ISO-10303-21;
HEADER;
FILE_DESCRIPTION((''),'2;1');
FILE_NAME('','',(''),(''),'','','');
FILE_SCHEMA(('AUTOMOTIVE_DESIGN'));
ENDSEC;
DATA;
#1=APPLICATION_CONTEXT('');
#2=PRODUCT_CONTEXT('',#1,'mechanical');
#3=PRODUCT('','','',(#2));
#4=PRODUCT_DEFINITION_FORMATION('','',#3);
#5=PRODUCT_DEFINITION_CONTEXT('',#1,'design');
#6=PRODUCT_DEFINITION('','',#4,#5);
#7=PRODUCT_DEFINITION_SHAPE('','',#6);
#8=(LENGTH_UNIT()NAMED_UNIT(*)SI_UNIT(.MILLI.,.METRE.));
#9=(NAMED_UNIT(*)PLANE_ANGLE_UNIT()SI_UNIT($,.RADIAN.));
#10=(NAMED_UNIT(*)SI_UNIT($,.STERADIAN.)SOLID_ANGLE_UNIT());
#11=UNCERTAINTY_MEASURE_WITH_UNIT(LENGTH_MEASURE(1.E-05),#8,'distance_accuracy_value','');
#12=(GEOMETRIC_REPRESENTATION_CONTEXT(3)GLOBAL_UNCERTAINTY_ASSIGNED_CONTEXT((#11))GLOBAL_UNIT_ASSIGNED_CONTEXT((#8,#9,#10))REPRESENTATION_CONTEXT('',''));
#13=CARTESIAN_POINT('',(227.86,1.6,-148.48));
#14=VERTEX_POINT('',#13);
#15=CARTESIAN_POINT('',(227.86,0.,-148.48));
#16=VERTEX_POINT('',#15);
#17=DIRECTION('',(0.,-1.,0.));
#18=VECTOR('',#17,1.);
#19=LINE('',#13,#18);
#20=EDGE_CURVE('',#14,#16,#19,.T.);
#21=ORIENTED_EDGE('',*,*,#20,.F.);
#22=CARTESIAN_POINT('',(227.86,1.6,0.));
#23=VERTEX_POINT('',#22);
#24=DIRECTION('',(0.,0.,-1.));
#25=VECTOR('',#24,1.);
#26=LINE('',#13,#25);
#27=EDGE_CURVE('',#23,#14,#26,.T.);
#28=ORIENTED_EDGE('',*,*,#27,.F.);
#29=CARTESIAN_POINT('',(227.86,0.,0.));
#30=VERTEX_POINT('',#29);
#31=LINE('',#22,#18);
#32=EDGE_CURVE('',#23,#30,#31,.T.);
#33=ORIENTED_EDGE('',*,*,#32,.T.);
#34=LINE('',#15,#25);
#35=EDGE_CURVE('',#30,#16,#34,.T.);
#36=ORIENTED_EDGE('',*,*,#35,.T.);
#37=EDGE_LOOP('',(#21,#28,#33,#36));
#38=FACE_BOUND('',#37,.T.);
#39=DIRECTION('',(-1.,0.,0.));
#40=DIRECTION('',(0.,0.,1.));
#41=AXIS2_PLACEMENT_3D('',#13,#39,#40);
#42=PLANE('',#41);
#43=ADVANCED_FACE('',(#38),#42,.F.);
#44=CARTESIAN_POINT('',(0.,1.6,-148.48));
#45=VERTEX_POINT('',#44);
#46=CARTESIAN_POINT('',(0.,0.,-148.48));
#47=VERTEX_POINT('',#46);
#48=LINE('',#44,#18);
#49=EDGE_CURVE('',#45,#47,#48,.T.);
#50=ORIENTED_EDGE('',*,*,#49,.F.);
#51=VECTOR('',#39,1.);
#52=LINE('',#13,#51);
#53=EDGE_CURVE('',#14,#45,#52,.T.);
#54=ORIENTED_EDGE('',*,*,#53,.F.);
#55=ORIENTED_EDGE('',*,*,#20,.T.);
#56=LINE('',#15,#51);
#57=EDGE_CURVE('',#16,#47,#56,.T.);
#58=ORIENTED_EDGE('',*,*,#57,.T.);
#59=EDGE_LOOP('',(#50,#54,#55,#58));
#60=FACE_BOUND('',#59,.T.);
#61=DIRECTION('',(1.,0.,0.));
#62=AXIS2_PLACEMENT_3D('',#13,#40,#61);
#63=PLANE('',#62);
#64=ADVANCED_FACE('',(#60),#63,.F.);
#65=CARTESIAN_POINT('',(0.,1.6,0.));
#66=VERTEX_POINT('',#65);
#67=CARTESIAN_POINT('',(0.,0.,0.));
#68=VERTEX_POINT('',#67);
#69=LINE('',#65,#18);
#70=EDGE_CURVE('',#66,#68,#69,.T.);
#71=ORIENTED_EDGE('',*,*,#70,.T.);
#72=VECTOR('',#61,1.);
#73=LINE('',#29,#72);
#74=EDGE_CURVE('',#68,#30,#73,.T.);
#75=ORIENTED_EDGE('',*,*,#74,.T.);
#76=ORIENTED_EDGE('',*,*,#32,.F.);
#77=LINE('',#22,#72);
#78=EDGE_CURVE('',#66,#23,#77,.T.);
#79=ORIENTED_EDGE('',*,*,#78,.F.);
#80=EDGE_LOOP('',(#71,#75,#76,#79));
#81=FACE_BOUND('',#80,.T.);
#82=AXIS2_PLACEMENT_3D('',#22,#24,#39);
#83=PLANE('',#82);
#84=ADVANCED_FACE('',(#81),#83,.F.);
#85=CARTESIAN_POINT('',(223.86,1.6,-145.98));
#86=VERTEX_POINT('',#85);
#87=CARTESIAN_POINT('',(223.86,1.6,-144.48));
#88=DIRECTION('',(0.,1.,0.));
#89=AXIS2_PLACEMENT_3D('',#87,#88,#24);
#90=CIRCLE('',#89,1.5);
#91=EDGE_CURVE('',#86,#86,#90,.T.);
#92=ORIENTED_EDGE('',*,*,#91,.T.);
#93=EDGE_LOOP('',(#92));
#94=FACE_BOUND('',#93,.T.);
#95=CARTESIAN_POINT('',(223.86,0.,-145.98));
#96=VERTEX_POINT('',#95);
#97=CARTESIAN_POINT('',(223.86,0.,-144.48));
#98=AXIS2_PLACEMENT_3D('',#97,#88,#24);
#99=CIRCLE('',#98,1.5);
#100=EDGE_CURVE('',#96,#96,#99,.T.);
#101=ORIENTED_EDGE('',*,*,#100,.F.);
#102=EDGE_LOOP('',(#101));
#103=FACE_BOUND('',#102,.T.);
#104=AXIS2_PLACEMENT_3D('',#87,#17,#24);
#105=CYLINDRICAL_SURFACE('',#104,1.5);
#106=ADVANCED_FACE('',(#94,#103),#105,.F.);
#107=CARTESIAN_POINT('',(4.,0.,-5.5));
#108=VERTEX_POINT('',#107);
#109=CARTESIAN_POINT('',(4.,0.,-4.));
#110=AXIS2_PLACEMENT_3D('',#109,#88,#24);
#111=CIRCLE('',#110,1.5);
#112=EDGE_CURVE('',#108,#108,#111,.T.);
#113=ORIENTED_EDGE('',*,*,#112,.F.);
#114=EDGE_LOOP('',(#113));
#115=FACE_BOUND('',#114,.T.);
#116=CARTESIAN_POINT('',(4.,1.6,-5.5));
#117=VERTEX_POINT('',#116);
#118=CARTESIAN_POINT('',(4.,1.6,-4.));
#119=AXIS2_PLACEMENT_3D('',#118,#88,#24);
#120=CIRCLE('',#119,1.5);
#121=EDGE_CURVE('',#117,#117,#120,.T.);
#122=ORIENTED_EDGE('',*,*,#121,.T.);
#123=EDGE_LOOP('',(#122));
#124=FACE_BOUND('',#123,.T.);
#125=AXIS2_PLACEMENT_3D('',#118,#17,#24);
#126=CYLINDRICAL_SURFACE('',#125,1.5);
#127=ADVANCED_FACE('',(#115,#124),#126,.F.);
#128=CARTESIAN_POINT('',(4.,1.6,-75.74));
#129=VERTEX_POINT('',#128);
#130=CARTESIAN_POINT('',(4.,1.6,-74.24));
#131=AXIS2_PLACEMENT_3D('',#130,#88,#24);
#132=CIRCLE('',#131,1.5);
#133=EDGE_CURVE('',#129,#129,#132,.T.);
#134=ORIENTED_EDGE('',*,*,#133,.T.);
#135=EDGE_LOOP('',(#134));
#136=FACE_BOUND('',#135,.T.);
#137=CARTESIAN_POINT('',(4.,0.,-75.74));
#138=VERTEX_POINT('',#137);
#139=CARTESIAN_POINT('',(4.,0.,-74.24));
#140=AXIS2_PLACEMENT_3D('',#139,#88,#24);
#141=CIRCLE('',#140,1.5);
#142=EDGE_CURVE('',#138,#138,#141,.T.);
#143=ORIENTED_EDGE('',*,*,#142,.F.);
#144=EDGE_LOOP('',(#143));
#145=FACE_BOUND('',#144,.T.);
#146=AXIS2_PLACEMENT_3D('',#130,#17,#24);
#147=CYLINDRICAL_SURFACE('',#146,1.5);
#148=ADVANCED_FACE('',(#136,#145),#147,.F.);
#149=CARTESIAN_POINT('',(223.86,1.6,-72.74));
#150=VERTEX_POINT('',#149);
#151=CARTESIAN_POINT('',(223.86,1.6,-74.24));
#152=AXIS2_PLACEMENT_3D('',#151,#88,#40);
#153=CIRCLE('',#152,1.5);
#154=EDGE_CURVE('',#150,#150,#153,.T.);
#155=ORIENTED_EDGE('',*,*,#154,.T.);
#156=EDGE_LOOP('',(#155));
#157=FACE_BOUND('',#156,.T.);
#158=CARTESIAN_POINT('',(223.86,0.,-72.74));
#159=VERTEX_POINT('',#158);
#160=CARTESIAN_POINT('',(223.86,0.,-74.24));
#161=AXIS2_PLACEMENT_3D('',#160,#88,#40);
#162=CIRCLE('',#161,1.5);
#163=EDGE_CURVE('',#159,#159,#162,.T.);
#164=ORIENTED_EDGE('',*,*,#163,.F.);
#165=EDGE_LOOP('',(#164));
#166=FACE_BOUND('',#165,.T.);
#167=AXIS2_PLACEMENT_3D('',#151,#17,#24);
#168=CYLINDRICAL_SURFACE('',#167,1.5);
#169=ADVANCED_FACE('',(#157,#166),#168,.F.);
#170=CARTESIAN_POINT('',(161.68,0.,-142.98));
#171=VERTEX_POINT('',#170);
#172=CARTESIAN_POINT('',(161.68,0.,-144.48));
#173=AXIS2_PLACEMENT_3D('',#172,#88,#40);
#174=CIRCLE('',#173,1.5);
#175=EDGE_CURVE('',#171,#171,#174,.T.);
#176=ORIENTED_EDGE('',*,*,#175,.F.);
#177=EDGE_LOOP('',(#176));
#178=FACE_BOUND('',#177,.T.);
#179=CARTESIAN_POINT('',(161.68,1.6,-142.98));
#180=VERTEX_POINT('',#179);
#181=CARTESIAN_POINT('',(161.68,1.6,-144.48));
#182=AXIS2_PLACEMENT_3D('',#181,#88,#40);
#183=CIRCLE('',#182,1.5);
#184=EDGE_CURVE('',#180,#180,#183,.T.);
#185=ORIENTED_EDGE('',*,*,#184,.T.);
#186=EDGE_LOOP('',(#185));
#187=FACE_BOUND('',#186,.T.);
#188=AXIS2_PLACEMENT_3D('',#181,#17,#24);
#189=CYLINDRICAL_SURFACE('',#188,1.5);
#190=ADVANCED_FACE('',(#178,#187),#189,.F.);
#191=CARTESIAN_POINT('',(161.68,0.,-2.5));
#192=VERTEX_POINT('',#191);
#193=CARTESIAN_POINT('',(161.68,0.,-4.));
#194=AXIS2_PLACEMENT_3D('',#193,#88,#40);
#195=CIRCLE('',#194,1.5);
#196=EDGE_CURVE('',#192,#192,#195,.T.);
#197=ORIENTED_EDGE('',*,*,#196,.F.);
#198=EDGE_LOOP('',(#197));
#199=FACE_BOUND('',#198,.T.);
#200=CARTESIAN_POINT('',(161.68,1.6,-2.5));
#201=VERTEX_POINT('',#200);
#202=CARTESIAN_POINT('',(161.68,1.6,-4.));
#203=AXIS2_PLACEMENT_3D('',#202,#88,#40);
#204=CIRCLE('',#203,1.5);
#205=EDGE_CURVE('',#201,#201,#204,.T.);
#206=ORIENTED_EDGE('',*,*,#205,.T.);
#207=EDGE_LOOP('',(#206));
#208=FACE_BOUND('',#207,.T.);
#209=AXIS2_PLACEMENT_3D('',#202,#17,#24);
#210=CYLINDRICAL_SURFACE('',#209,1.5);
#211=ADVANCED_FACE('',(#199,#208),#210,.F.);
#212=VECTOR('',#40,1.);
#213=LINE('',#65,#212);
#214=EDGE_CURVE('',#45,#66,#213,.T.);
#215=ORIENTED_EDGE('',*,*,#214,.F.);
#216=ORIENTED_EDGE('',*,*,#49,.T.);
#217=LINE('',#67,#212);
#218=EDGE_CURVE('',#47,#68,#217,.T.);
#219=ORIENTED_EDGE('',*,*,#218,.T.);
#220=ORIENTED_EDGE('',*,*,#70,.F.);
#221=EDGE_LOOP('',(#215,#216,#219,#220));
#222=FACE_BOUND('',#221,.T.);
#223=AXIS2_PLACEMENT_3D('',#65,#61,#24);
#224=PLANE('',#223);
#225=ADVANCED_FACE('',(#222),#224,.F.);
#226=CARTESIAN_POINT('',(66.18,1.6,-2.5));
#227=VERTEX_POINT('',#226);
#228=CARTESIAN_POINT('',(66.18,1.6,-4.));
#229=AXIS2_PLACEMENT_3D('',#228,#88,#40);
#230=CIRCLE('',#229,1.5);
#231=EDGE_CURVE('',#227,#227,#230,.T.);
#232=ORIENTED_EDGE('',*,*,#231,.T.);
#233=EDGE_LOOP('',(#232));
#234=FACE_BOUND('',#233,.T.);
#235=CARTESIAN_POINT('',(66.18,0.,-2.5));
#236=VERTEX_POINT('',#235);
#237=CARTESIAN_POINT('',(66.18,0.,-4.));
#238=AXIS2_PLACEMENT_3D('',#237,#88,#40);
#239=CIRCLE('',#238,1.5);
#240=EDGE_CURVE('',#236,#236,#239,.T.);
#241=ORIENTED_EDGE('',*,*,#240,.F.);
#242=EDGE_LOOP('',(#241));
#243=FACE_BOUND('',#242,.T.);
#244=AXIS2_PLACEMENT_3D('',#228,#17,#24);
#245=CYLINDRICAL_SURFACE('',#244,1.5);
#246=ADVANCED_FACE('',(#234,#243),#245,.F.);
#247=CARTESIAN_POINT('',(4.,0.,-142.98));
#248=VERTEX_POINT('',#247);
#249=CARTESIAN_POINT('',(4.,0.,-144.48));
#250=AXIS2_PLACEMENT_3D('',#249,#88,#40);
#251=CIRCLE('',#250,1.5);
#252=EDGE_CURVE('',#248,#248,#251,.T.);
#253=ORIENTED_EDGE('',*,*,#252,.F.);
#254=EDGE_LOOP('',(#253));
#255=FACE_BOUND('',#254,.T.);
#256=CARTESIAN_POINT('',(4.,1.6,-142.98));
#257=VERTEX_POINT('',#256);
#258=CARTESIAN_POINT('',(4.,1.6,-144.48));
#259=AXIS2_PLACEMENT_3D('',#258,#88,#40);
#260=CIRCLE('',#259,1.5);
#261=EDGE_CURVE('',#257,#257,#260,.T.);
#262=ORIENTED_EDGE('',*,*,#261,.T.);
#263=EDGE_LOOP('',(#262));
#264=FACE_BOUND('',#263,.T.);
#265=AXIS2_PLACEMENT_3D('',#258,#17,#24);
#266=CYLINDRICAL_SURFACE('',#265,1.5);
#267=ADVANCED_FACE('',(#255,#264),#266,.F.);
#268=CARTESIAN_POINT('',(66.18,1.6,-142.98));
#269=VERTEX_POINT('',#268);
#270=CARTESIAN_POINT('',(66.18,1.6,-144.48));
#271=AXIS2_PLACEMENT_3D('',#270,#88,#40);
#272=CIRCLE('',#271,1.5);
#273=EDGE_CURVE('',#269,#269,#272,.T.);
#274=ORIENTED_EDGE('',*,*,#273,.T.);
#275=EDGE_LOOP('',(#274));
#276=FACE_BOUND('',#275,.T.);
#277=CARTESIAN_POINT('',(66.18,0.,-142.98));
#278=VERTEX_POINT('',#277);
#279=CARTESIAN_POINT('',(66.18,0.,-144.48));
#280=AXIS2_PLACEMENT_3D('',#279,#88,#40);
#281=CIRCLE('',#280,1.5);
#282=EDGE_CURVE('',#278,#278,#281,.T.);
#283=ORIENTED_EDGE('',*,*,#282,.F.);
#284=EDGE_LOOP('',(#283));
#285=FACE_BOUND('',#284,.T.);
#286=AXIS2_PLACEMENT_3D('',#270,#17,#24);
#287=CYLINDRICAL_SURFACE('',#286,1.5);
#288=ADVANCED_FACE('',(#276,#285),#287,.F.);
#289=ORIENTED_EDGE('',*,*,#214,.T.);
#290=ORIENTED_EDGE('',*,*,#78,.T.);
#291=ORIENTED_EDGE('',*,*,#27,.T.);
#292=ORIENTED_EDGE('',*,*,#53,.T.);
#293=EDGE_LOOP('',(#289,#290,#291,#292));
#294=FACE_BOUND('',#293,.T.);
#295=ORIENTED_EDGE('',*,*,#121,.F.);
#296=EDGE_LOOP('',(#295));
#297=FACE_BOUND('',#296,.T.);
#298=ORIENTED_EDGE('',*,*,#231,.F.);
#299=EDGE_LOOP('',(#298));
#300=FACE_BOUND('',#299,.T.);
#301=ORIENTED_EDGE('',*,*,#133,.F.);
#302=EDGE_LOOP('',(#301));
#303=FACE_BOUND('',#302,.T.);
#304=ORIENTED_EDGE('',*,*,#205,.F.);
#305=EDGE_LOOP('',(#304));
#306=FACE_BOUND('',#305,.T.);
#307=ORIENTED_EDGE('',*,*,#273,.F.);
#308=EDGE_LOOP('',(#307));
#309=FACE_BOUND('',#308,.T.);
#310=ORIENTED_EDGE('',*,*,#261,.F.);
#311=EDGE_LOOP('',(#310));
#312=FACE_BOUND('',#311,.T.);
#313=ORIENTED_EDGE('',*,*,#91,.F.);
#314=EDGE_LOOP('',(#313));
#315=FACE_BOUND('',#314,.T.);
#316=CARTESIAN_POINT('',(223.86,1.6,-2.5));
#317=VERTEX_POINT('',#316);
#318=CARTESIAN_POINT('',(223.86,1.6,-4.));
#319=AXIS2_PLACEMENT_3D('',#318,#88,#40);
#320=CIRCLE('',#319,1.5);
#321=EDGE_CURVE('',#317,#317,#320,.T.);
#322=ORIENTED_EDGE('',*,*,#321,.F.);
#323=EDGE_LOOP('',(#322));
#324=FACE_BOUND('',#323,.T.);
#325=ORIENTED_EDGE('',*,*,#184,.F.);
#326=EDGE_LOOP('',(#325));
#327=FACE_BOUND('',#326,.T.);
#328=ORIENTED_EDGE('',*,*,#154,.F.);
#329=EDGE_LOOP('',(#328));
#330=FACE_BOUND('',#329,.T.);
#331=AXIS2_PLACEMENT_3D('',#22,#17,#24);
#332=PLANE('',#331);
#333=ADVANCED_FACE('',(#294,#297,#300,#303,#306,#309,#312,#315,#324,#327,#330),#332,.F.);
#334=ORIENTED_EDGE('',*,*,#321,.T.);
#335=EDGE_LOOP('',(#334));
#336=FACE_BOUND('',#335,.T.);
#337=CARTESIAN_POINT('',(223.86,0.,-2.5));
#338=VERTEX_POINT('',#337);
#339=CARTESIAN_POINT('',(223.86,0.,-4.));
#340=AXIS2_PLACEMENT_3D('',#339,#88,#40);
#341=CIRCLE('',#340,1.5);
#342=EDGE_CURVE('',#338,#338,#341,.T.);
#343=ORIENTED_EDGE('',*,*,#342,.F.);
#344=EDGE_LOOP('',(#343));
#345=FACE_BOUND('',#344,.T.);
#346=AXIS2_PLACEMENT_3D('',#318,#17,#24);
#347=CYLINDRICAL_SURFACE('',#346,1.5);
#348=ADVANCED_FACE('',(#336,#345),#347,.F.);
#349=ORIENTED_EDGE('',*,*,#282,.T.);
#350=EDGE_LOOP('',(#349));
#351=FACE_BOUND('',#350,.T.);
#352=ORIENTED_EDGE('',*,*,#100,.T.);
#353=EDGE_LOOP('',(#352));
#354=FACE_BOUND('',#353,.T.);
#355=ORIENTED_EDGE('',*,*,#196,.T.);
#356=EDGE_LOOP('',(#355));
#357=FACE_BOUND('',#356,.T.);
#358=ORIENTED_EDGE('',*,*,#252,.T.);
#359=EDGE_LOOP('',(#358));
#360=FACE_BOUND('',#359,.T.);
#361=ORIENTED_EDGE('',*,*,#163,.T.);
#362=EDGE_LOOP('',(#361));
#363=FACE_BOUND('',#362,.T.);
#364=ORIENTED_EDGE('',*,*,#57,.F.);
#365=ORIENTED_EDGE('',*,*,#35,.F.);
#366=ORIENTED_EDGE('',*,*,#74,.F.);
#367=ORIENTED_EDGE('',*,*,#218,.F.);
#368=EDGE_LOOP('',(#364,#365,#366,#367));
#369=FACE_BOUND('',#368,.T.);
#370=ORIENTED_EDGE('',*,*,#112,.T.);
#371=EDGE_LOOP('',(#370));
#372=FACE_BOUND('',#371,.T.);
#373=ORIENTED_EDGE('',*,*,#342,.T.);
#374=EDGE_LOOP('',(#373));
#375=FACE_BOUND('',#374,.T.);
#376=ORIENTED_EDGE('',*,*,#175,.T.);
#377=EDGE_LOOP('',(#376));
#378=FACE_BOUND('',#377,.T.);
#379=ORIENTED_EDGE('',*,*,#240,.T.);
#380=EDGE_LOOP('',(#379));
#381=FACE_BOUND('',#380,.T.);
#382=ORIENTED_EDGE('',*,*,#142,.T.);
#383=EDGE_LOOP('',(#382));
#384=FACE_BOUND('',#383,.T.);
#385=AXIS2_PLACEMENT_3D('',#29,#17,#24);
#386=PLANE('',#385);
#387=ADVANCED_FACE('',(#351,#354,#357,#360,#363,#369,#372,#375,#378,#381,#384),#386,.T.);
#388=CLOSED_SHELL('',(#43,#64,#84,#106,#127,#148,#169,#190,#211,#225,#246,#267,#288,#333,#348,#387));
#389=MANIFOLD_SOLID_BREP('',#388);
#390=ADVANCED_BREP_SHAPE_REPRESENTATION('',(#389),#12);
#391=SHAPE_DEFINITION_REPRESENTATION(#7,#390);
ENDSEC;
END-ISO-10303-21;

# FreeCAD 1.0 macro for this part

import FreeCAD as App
import Part
import Sketcher

V = App.Vector


def add_polygon(sketch, points):
    """Adds a closed chain of lines whose ends are joined by coincident constraints."""
    first, n = sketch.GeometryCount, len(points)
    for a, b in zip(points, points[1:] + points[:1]):
        sketch.addGeometry(Part.LineSegment(App.Vector(*a, 0), App.Vector(*b, 0)), False)
    for i in range(n):
        sketch.addConstraint(Sketcher.Constraint("Coincident", first + i, 2, first + (i + 1) % n, 1))

doc = App.newDocument("Part")
params = doc.addObject("Spreadsheet::Sheet", "Params")
for row, (alias, value) in enumerate([
    ("sketch1_diameter", "3 mm"),
    ("sketch1_width", "227.86 mm"),
    ("sketch1_height", "148.48 mm"),
    ("pad1_length", "1.6 mm"),
], start=1):
    params.set(f"A{row}", alias)
    params.set(f"B{row}", "=" + value)
    params.setAlias(f"B{row}", alias)

body = doc.addObject("PartDesign::Body", "Body")

# Sketch on XZ plane
sketch1 = body.newObject("Sketcher::SketchObject", "Sketch")
sketch1.AttachmentSupport = (doc.getObject("XZ_Plane"), [""])
sketch1.MapMode = "FlatFace"
add_polygon(sketch1, [(0, -148.5), (0, 0), (227.9, 0), (227.9, -148.5)])  # lines 0-3
sketch1.addGeometry(Part.Circle(V(4, -4, 0), V(0, 0, 1), 1.5), False)  # 4
sketch1.addGeometry(Part.Circle(V(66.2, -4, 0), V(0, 0, 1), 1.5), False)  # 5
sketch1.addGeometry(Part.Circle(V(161.7, -4, 0), V(0, 0, 1), 1.5), False)  # 6
sketch1.addGeometry(Part.Circle(V(223.9, -4, 0), V(0, 0, 1), 1.5), False)  # 7
sketch1.addGeometry(Part.Circle(V(4, -74.2, 0), V(0, 0, 1), 1.5), False)  # 8
sketch1.addGeometry(Part.Circle(V(4, -144.5, 0), V(0, 0, 1), 1.5), False)  # 9
sketch1.addGeometry(Part.Circle(V(66.2, -144.5, 0), V(0, 0, 1), 1.5), False)  # 10
sketch1.addGeometry(Part.Circle(V(223.9, -74.2, 0), V(0, 0, 1), 1.5), False)  # 11
sketch1.addGeometry(Part.Circle(V(161.7, -144.5, 0), V(0, 0, 1), 1.5), False)  # 12
sketch1.addGeometry(Part.Circle(V(223.9, -144.5, 0), V(0, 0, 1), 1.5), False)  # 13
sketch1.addConstraint(Sketcher.Constraint("Vertical", 0))
sketch1.addConstraint(Sketcher.Constraint("Horizontal", 1))
sketch1.addConstraint(Sketcher.Constraint("Vertical", 2))
sketch1.addConstraint(Sketcher.Constraint("Horizontal", 3))
sketch1.addConstraint(Sketcher.Constraint("Coincident", 0, 2, -1, 1))
sketch1.addConstraint(Sketcher.Constraint("Equal", 4, 5))
sketch1.addConstraint(Sketcher.Constraint("Equal", 5, 6))
sketch1.addConstraint(Sketcher.Constraint("Equal", 6, 7))
sketch1.addConstraint(Sketcher.Constraint("Equal", 7, 8))
sketch1.addConstraint(Sketcher.Constraint("Equal", 8, 9))
sketch1.addConstraint(Sketcher.Constraint("Equal", 9, 10))
sketch1.addConstraint(Sketcher.Constraint("Equal", 10, 11))
sketch1.addConstraint(Sketcher.Constraint("Equal", 11, 12))
sketch1.addConstraint(Sketcher.Constraint("Equal", 12, 13))
sketch1.addConstraint(Sketcher.Constraint("Horizontal", 4, 3, 5, 3))
sketch1.addConstraint(Sketcher.Constraint("Horizontal", 5, 3, 6, 3))
sketch1.addConstraint(Sketcher.Constraint("Horizontal", 6, 3, 7, 3))
sketch1.addConstraint(Sketcher.Constraint("Horizontal", 9, 3, 10, 3))
sketch1.addConstraint(Sketcher.Constraint("Horizontal", 8, 3, 11, 3))
sketch1.addConstraint(Sketcher.Constraint("Horizontal", 10, 3, 12, 3))
sketch1.addConstraint(Sketcher.Constraint("Horizontal", 12, 3, 13, 3))
sketch1.addConstraint(Sketcher.Constraint("Vertical", 4, 3, 8, 3))
sketch1.addConstraint(Sketcher.Constraint("Vertical", 8, 3, 9, 3))
sketch1.addConstraint(Sketcher.Constraint("Vertical", 5, 3, 10, 3))
sketch1.addConstraint(Sketcher.Constraint("Vertical", 7, 3, 11, 3))
sketch1.addConstraint(Sketcher.Constraint("Vertical", 6, 3, 12, 3))
sketch1.addConstraint(Sketcher.Constraint("Vertical", 11, 3, 13, 3))
sketch1.addConstraint(Sketcher.Constraint("Diameter", 4, 3.0))
sketch1.addConstraint(Sketcher.Constraint("DistanceX", -1, 1, 4, 3, 4.0))
sketch1.addConstraint(Sketcher.Constraint("DistanceY", 4, 3, -1, 1, 4.0))
sketch1.addConstraint(Sketcher.Constraint("DistanceX", 7, 3, 1, 2, 4.0))
sketch1.addConstraint(Sketcher.Constraint("DistanceY", 2, 2, 13, 3, 4.0))
sketch1.addConstraint(Sketcher.Constraint("DistanceX", 1, 1, 1, 2, 227.86))
sketch1.addConstraint(Sketcher.Constraint("DistanceY", 0, 1, 0, 2, 148.48))
sketch1.addConstraint(Sketcher.Constraint("DistanceX", 5, 3, 6, 3, 95.5))
sketch1.addConstraint(Sketcher.Constraint("DistanceX", -1, 1, 5, 3, 66.18))
sketch1.addConstraint(Sketcher.Constraint("DistanceY", 8, 3, -1, 1, 74.24))
sketch1.setExpression("Constraints[31]", "Params.sketch1_diameter")
sketch1.setExpression("Constraints[36]", "Params.sketch1_width")
sketch1.setExpression("Constraints[37]", "Params.sketch1_height")
pad1 = body.newObject("PartDesign::Pad", "Pad")
pad1.Profile = sketch1
pad1.setExpression("Length", "Params.pad1_length")
pad1.Reversed = True

doc.recompute()
